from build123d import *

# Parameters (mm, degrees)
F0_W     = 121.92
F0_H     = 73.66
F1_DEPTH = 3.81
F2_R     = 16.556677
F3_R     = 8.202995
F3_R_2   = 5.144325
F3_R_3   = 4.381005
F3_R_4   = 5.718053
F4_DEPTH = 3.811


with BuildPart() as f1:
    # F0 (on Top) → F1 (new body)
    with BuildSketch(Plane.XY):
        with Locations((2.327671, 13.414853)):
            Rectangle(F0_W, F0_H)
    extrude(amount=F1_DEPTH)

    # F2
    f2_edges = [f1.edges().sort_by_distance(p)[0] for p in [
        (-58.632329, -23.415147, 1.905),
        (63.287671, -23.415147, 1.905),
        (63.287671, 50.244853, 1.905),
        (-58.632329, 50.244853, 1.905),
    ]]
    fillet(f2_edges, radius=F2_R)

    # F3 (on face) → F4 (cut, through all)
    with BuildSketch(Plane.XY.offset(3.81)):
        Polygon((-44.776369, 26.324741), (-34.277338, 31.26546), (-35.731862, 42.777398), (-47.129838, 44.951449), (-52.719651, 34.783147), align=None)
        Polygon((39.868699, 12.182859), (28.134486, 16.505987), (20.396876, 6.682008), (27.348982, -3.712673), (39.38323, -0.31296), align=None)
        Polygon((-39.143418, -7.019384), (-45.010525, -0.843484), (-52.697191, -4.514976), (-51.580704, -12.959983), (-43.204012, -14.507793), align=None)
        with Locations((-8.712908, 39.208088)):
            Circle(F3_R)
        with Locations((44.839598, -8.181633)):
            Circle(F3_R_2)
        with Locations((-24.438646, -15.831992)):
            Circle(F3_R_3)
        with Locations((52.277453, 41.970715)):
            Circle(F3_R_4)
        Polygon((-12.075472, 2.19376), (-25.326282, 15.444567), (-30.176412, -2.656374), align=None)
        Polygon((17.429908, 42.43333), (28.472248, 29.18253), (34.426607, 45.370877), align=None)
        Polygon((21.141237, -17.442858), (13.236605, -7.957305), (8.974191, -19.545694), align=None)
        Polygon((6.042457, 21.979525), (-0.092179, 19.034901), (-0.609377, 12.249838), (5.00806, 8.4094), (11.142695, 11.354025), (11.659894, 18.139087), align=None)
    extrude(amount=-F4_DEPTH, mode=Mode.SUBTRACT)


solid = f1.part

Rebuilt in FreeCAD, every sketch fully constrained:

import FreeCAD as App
import Part
import Sketcher

V = App.Vector
Q = App.Units.Quantity


def edges_at(feature, points):
    """Names of the edges that pass closest to the given points."""
    edges = feature.Shape.Edges
    near = lambda p: min(range(len(edges)), key=lambda i: edges[i].distToShape(Part.Vertex(*p))[0])
    return sorted({f"Edge{near(p) + 1}" for p in points})


def add_polygon(sketch, points):
    """Adds a closed chain of lines whose ends are joined by coincident constraints."""
    first, n = sketch.GeometryCount, len(points)
    for a, b in zip(points, points[1:] + points[:1]):
        sketch.addGeometry(Part.LineSegment(App.Vector(*a, 0), App.Vector(*b, 0)), False)
    for i in range(n):
        sketch.addConstraint(Sketcher.Constraint("Coincident", first + i, 2, first + (i + 1) % n, 1))

doc = App.newDocument("Part")
body = doc.addObject("PartDesign::Body", "Body")

sketch1 = body.newObject("Sketcher::SketchObject", "Sketch")
sketch1.AttachmentSupport = (doc.getObject("XY_Plane"), [""])
sketch1.MapMode = "FlatFace"
add_polygon(sketch1, [(-59, 50), (-59, -23), (63, -23), (63, 50)])
sketch1.addConstraint([
    Sketcher.Constraint("Vertical", 0),
    Sketcher.Constraint("Horizontal", 1),
    Sketcher.Constraint("Vertical", 2),
    Sketcher.Constraint("Horizontal", 3),
    Sketcher.Constraint("DistanceX", 1, 1, 1, 2, Q("4.8 in")),
    Sketcher.Constraint("DistanceY", 0, 2, 0, 1, Q("2.9 in")),
    Sketcher.Constraint("DistanceX", 0, 2, -1, 1, Q("58.632329 mm")),
    Sketcher.Constraint("DistanceY", 0, 2, -1, 1, Q("23.415147 mm")),
])
pad1 = body.newObject("PartDesign::Pad", "Pad")
pad1.Profile = sketch1
pad1.Length = Q("0.15 in")
doc.recompute()

fillet = body.newObject("PartDesign::Fillet", "Fillet")
fillet.Base = (pad1, edges_at(pad1, [
    (-58.632, -23.415, 1.905),
    (63.288, -23.415, 1.905),
    (63.288, 50.245, 1.905),
    (-58.632, 50.245, 1.905),
]))
fillet.Radius = 16.556677

sketch2 = body.newObject("Sketcher::SketchObject", "Sketch001")
sketch2.AttachmentSupport = (doc.getObject("XY_Plane"), [""])
sketch2.MapMode = "FlatFace"
sketch2.AttachmentOffset = App.Placement(V(0, 0, 0.15 * 25.4), App.Rotation())
add_polygon(sketch2, [(-44.8, 26.3), (-34.3, 31.3), (-35.7, 42.8), (-47.1, 45), (-52.7, 34.8)])
add_polygon(sketch2, [(39.9, 12.2), (28.1, 16.5), (20.4, 6.7), (27.3, -3.7), (39.4, -0.3)])
add_polygon(sketch2, [(-39.1, -7), (-45, -0.8), (-52.7, -4.5), (-51.6, -13), (-43.2, -14.5)])
sketch2.addGeometry(Part.Circle(V(-8.7, 39.2, 0), V(0, 0, 1), 8.2), False)
sketch2.addGeometry(Part.Circle(V(44.8, -8.2, 0), V(0, 0, 1), 5.1), False)
sketch2.addGeometry(Part.Circle(V(-24.4, -15.8, 0), V(0, 0, 1), 4.4), False)
sketch2.addGeometry(Part.Circle(V(52.3, 42, 0), V(0, 0, 1), 5.7), False)
add_polygon(sketch2, [(-12.1, 2.2), (-25.3, 15.4), (-30.2, -2.7)])
add_polygon(sketch2, [(17.4, 42.4), (28.5, 29.2), (34.4, 45.4)])
add_polygon(sketch2, [(21.1, -17.4), (13.2, -8), (9, -19.5)])
add_polygon(sketch2, [(6, 22), (-0.1, 19), (-0.6, 12.2), (5, 8.4), (11.1, 11.4), (11.7, 18.1)])
sketch2.addConstraint([
    Sketcher.Constraint("Parallel", 22, 25),
    Sketcher.Constraint("Parallel", 23, 26),
    Sketcher.Constraint("Parallel", 24, 27),
    Sketcher.Constraint("Parallel", 28, 31),
    Sketcher.Constraint("Parallel", 29, 32),
    Sketcher.Constraint("Parallel", 30, 33),
    Sketcher.Constraint("Equal", 0, 1),
    Sketcher.Constraint("Equal", 1, 2),
    Sketcher.Constraint("Equal", 2, 3),
    Sketcher.Constraint("Equal", 3, 4),
    Sketcher.Constraint("Equal", 5, 6),
    Sketcher.Constraint("Equal", 6, 7),
    Sketcher.Constraint("Equal", 7, 8),
    Sketcher.Constraint("Equal", 8, 9),
    Sketcher.Constraint("Equal", 10, 11),
    Sketcher.Constraint("Equal", 11, 12),
    Sketcher.Constraint("Equal", 12, 13),
    Sketcher.Constraint("Equal", 13, 14),
    Sketcher.Constraint("Equal", 19, 20),
    Sketcher.Constraint("Equal", 20, 21),
    Sketcher.Constraint("Equal", 22, 23),
    Sketcher.Constraint("Equal", 23, 24),
    Sketcher.Constraint("Equal", 28, 29),
    Sketcher.Constraint("Equal", 29, 30),
    Sketcher.Constraint("Equal", 30, 31),
    Sketcher.Constraint("Angle", 19, Q("135.000006 deg")),
    Sketcher.Constraint("Diameter", 15, Q("16.40599 mm")),
    Sketcher.Constraint("Diameter", 16, Q("10.28865 mm")),
    Sketcher.Constraint("Diameter", 17, Q("8.76201 mm")),
    Sketcher.Constraint("Diameter", 18, Q("11.436106 mm")),
    Sketcher.Constraint("DistanceX", -1, 1, 16, 3, Q("44.839598 mm")),
    Sketcher.Constraint("DistanceX", -1, 1, 9, 2, Q("39.868699 mm")),
    Sketcher.Constraint("DistanceY", -1, 1, 28, 2, Q("19.034901 mm")),
    Sketcher.Constraint("DistanceY", -1, 1, 30, 2, Q("8.4094 mm")),
    Sketcher.Constraint("DistanceX", 17, 3, 18, 3, Q("76.716099 mm")),
    Sketcher.Constraint("DistanceX", 2, 2, 0, 2, Q("12.8525 mm")),
    Sketcher.Constraint("DistanceY", 3, 2, 2, 2, Q("10.168302 mm")),
    Sketcher.Constraint("DistanceY", 5, 2, 15, 3, Q("22.702101 mm")),
    Sketcher.Constraint("DistanceY", 17, 3, 6, 2, Q("22.514 mm")),
    Sketcher.Constraint("DistanceY", 12, 2, 10, 2, Q("12.116499 mm")),
    Sketcher.Constraint("DistanceY", 17, 3, 13, 2, Q("1.324199 mm")),
    Sketcher.Constraint("DistanceY", 14, 2, 10, 2, Q("6.1759 mm")),
    Sketcher.Constraint("DistanceX", 13, 2, 20, 2, Q("13.0276 mm")),
    Sketcher.Constraint("DistanceX", 24, 2, 23, 2, Q("16.996699 mm")),
    Sketcher.Constraint("DistanceY", 22, 2, 24, 2, Q("13.2508 mm")),
    Sketcher.Constraint("DistanceY", 27, 2, 8, 2, Q("17.129898 mm")),
    Sketcher.Constraint("DistanceX", 31, 2, 32, 2, Q("0.517199 mm")),
    Sketcher.Constraint("Distance", 10, Q("8.518491 mm")),
    Sketcher.Constraint("DistanceY", -1, 1, 0, 2, Q("31.26546 mm")),
    Sketcher.Constraint("DistanceY", -1, 1, 2, 2, Q("44.951449 mm")),
    Sketcher.Constraint("DistanceX", 3, 2, -1, 1, Q("52.719651 mm")),
    Sketcher.Constraint("DistanceX", 4, 2, -1, 1, Q("44.776369 mm")),
    Sketcher.Constraint("DistanceX", -1, 1, 7, 2, Q("27.348982 mm")),
    Sketcher.Constraint("DistanceX", -1, 1, 8, 2, Q("39.38323 mm")),
    Sketcher.Constraint("DistanceY", 8, 2, -1, 1, Q("0.31296 mm")),
    Sketcher.Constraint("DistanceY", -1, 1, 9, 2, Q("12.182859 mm")),
    Sketcher.Constraint("DistanceX", 11, 2, -1, 1, Q("52.697191 mm")),
    Sketcher.Constraint("DistanceX", 19, 2, -1, 1, Q("25.326282 mm")),
    Sketcher.Constraint("DistanceX", 20, 2, -1, 1, Q("30.176412 mm")),
    Sketcher.Constraint("DistanceY", -1, 1, 21, 2, Q("2.19376 mm")),
    Sketcher.Constraint("DistanceX", -1, 1, 22, 2, Q("28.472248 mm")),
    Sketcher.Constraint("DistanceY", -1, 1, 22, 2, Q("29.18253 mm")),
    Sketcher.Constraint("DistanceX", -1, 1, 26, 2, Q("8.974191 mm")),
    Sketcher.Constraint("DistanceX", 28, 2, -1, 1, Q("0.092179 mm")),
    Sketcher.Constraint("DistanceX", -1, 1, 30, 2, Q("5.00806 mm")),
    Sketcher.Constraint("DistanceY", 16, 3, 15, 3, Q("47.389721 mm")),
    Sketcher.Constraint("DistanceY", 17, 3, 15, 3, Q("55.04008 mm")),
    Sketcher.Constraint("DistanceX", 15, 3, 18, 3, Q("60.990361 mm")),
    Sketcher.Constraint("DistanceX", 0, 2, 15, 3, Q("25.56443 mm")),
    Sketcher.Constraint("DistanceY", 25, 2, 7, 2, Q("4.244632 mm")),
    Sketcher.Constraint("DistanceX", 31, 2, 6, 2, Q("9.254181 mm")),
    Sketcher.Constraint("DistanceY", -1, 1, 18, 3, Q("41.970715 mm")),
])
pocket1 = body.newObject("PartDesign::Pocket", "Pocket")
pocket1.Profile = sketch2
pocket1.Type = "ThroughAll"

doc.recompute()
